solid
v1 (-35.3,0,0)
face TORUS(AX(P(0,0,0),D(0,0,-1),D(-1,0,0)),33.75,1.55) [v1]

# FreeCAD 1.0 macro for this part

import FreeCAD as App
import Part
import Sketcher
Q = App.Units.Quantity

doc = App.newDocument("Part")
body = doc.addObject("PartDesign::Body", "Body")

# Sketch on XZ plane
sketch1 = body.newObject("Sketcher::SketchObject", "Sketch")
sketch1.AttachmentSupport = (doc.getObject("XZ_Plane"), [""])
sketch1.MapMode = "FlatFace"
sketch1.addGeometry(Part.Circle(App.Vector(-33.75, 0, 0), App.Vector(0, 0, 1), 1.55), False)
sketch1.addConstraint([
    Sketcher.Constraint("PointOnObject", 0, 3, -1),
    Sketcher.Constraint("Diameter", 0, Q("3.1 mm")),
    Sketcher.Constraint("DistanceX", 0, 3, -1, 1, Q("33.75 mm")),
])

# Sketch on XY plane
sketch2 = body.newObject("Sketcher::SketchObject", "Sketch001")
sketch2.AttachmentSupport = (doc.getObject("XY_Plane"), [""])
sketch2.MapMode = "FlatFace"
sketch2.addGeometry(Part.Circle(App.Vector(0, 0, 0), App.Vector(0, 0, 1), 32.2), False)
sketch2.addConstraint([
    Sketcher.Constraint("Coincident", 0, 3, -1, 1),
    Sketcher.Constraint("Diameter", 0, Q("64.4 mm")),
])
doc.recompute()

additivepipe = body.newObject("PartDesign::AdditivePipe", "AdditivePipe")
additivepipe.Profile = sketch1
additivepipe.Spine = (sketch2, ["Edge1"])

doc.recompute()
